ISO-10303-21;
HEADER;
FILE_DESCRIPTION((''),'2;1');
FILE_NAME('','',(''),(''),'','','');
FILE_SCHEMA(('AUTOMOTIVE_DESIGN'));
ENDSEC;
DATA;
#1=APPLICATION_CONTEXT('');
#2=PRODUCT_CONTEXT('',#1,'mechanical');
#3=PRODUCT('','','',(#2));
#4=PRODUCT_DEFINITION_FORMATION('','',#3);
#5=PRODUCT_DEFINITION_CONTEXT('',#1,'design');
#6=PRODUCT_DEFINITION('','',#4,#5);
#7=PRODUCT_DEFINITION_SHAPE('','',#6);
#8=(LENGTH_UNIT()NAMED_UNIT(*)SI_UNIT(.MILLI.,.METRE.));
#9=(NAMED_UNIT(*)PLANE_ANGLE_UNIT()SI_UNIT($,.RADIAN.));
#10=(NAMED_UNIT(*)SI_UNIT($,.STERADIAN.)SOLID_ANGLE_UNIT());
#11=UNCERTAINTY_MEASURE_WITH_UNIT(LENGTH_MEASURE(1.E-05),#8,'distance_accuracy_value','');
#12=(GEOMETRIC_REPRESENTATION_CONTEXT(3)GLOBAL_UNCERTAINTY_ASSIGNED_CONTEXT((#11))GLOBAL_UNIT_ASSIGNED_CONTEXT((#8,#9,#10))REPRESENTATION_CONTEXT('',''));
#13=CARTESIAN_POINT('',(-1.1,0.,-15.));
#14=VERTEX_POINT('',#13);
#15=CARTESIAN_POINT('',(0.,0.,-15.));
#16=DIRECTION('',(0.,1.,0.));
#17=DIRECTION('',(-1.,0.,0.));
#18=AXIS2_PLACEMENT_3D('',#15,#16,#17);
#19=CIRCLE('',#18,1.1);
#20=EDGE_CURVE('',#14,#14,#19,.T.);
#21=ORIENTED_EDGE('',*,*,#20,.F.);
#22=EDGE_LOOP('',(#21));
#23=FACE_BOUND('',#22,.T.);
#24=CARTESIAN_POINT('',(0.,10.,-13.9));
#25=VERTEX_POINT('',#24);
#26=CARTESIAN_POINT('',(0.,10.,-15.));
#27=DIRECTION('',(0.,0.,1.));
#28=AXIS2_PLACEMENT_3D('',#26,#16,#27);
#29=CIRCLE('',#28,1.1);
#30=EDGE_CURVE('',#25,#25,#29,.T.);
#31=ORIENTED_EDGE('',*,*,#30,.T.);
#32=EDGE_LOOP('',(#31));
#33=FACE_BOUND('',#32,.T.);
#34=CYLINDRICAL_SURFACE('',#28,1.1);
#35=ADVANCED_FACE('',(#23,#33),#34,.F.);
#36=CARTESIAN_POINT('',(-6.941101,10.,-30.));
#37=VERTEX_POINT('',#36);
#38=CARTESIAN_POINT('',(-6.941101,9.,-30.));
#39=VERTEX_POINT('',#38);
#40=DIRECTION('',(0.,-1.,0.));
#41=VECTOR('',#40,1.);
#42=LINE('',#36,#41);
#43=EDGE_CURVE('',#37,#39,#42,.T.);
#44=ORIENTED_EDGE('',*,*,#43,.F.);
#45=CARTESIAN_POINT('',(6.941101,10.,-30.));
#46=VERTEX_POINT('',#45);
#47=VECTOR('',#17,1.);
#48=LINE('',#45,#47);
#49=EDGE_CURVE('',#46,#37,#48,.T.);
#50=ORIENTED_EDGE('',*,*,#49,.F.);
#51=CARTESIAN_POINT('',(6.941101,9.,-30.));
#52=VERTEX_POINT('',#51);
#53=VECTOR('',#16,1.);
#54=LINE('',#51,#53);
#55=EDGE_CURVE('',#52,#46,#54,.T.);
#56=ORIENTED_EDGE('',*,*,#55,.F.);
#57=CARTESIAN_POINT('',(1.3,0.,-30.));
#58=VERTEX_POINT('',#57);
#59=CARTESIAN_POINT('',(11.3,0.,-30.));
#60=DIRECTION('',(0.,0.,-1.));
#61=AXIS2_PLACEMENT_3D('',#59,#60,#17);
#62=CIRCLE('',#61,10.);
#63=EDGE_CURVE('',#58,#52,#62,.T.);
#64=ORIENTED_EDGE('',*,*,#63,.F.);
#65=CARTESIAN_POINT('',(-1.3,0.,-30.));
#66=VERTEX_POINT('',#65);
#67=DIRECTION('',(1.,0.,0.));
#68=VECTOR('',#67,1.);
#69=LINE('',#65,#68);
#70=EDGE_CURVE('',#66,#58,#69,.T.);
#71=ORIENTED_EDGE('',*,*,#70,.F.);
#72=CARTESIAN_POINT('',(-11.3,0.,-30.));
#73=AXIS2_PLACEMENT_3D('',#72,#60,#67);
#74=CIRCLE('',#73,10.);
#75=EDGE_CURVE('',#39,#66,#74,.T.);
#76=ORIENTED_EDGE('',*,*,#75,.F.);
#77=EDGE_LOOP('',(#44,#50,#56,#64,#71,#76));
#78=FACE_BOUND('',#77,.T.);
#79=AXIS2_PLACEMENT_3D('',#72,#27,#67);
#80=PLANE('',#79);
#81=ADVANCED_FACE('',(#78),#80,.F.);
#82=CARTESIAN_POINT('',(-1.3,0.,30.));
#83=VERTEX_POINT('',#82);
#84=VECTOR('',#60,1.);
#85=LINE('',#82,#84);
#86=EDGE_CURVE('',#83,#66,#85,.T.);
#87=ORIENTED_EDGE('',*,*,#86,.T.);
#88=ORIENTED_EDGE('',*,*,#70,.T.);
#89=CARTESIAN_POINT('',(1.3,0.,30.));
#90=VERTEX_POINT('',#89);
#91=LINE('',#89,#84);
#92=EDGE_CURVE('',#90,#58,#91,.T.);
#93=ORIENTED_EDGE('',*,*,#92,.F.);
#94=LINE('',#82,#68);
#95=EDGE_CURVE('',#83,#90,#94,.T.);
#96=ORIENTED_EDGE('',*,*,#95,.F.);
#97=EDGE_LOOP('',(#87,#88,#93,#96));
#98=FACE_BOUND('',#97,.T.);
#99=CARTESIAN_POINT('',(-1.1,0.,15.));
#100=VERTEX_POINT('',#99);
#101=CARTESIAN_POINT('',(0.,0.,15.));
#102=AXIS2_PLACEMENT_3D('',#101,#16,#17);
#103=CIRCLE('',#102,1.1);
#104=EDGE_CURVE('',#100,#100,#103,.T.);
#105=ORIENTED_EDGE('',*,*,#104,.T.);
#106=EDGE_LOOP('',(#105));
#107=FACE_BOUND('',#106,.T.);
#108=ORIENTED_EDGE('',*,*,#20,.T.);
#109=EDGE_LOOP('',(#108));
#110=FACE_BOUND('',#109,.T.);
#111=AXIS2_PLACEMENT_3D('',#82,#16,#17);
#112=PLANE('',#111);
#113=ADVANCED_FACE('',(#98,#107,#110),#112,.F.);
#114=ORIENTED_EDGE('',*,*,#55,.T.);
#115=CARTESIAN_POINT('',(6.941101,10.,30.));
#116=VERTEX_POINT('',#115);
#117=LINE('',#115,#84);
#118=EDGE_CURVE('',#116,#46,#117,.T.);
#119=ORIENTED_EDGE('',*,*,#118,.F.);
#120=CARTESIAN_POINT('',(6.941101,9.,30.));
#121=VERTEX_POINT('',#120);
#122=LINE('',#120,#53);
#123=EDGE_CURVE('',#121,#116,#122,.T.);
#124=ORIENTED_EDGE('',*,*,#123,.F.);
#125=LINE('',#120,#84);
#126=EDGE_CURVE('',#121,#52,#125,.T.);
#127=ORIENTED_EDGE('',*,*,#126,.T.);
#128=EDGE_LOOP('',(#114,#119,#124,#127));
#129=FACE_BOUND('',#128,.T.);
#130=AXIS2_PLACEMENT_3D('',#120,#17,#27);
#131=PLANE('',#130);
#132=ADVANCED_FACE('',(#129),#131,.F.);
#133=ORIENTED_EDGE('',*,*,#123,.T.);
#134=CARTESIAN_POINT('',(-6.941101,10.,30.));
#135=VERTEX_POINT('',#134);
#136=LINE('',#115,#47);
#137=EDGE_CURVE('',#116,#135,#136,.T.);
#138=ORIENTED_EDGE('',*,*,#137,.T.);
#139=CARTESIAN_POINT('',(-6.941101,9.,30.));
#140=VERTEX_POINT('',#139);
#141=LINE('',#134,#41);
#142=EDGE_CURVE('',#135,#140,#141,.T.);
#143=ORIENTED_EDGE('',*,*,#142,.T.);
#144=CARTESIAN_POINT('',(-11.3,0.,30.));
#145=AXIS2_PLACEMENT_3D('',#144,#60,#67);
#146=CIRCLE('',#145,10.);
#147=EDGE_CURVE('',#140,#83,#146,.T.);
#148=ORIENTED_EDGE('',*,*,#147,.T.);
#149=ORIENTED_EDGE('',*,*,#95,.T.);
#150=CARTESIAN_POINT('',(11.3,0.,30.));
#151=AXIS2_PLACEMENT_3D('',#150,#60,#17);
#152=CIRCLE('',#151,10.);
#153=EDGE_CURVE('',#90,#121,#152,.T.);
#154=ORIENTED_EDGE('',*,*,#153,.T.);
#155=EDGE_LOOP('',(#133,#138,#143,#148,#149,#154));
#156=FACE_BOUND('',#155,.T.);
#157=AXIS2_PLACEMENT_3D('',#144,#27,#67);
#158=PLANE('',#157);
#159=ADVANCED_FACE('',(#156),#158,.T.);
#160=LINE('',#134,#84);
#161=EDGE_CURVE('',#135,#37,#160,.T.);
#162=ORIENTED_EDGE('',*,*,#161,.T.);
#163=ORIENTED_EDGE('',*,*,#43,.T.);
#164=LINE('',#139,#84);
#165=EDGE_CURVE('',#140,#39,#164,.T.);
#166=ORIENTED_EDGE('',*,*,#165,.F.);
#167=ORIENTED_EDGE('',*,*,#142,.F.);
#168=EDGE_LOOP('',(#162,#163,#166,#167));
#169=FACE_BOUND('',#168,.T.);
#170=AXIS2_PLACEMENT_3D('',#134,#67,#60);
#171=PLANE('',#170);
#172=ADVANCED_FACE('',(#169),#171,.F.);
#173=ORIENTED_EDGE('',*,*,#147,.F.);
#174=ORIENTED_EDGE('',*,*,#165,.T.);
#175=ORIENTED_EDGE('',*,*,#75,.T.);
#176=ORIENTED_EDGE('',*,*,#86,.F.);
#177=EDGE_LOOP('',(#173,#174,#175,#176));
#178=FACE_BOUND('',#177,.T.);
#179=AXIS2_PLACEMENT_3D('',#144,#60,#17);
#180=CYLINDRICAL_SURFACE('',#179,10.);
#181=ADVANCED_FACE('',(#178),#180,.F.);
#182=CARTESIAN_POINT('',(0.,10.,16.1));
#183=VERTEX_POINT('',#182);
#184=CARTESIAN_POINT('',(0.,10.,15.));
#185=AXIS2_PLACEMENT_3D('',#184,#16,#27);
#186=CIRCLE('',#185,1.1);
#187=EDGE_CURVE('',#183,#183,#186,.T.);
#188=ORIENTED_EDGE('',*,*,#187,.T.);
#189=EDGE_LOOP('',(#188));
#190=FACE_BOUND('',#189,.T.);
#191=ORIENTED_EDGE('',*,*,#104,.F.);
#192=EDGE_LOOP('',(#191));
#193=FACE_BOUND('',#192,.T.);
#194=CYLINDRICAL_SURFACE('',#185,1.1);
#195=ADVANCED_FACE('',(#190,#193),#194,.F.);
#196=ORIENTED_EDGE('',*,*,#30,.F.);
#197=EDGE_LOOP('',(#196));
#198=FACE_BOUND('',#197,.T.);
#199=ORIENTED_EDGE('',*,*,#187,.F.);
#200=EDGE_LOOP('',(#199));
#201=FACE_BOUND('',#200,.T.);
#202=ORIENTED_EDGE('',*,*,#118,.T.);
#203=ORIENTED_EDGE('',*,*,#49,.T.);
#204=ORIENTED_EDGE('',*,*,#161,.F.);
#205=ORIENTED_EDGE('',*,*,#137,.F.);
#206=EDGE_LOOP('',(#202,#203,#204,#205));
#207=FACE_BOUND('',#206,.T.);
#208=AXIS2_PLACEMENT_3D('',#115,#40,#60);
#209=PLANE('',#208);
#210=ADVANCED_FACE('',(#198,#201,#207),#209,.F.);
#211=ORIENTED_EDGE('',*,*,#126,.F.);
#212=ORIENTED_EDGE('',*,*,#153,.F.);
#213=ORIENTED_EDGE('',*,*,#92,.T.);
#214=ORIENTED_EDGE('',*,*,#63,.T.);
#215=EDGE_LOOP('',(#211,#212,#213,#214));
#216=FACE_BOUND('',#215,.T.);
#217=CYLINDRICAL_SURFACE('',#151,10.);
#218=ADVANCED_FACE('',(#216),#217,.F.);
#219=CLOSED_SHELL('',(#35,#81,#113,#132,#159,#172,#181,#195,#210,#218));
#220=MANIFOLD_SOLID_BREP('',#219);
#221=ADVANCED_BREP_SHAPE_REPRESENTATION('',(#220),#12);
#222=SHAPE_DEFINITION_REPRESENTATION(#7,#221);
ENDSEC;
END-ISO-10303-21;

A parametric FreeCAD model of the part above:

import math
import FreeCAD as App
import Part
import Sketcher

V = App.Vector
Q = App.Units.Quantity

doc = App.newDocument("Part")
body = doc.addObject("PartDesign::Body", "Body")

# Sketch on XY plane
sketch1 = body.newObject("Sketcher::SketchObject", "Sketch")
sketch1.AttachmentSupport = (doc.getObject("XY_Plane"), [""])
sketch1.MapMode = "FlatFace"
sketch1.addGeometry([
    Part.LineSegment(V(-1.3, 0, 0), V(1.3, 0, 0)),  # 0
    Part.ArcOfCircle(Part.Circle(V(11.3, 0, 0), V(0, 0, 1), 10), math.radians(116), math.radians(180)),  # 1
    Part.LineSegment(V(6.9, 9, 0), V(6.9, 10, 0)),  # 2
    Part.LineSegment(V(6.9, 10, 0), V(-6.9, 10, 0)),  # 3
    Part.LineSegment(V(-6.9, 10, 0), V(-6.9, 9, 0)),  # 4
    Part.ArcOfCircle(Part.Circle(V(-11.3, 0, 0), V(0, 0, 1), 10), math.radians(0), math.radians(64)),  # 5
], False)
sketch1.addConstraint([
    Sketcher.Constraint("Coincident", 0, 2, 1, 2),
    Sketcher.Constraint("Coincident", 1, 1, 2, 1),
    Sketcher.Constraint("Coincident", 2, 2, 3, 1),
    Sketcher.Constraint("Coincident", 3, 2, 4, 1),
    Sketcher.Constraint("Coincident", 4, 2, 5, 2),
    Sketcher.Constraint("Coincident", 5, 1, 0, 1),
    Sketcher.Constraint("Horizontal", 0),
    Sketcher.Constraint("Vertical", 2),
    Sketcher.Constraint("Horizontal", 3),
    Sketcher.Constraint("Vertical", 4),
    Sketcher.Constraint("Equal", 1, 5),
    Sketcher.Constraint("Symmetric", 1, 3, 5, 3, -1, 1),
    Sketcher.Constraint("Symmetric", 1, 1, 4, 2, -2),
    Sketcher.Constraint("PointOnObject", 0, 2, -1),
    Sketcher.Constraint("Radius", 1, Q("10 mm")),
    Sketcher.Constraint("DistanceY", 2, 1, 2, 2, Q("1 mm")),
    Sketcher.Constraint("DistanceX", 0, 1, 0, 2, Q("2.6 mm")),
    Sketcher.Constraint("DistanceY", -1, 1, 1, 1, Q("9 mm")),
])
pad1 = body.newObject("PartDesign::Pad", "Pad")
pad1.Profile = sketch1
pad1.Length = 60
pad1.Midplane = True

# Sketch on XZ plane
sketch2 = body.newObject("Sketcher::SketchObject", "Sketch001")
sketch2.AttachmentSupport = (doc.getObject("XZ_Plane"), [""])
sketch2.MapMode = "FlatFace"
sketch2.AttachmentOffset = App.Placement(V(0, 0, -10), App.Rotation())
sketch2.addGeometry([
    Part.Circle(V(0, 15, 0), V(0, 0, 1), 1.1),
    Part.Circle(V(0, -15, 0), V(0, 0, 1), 1.1),
], False)
sketch2.addConstraint([
    Sketcher.Constraint("Equal", 0, 1),
    Sketcher.Constraint("Symmetric", 0, 3, 1, 3, -1, 1),
    Sketcher.Constraint("PointOnObject", 0, 3, -2),
    Sketcher.Constraint("Diameter", 0, Q("2.2 mm")),
    Sketcher.Constraint("DistanceY", -1, 1, 0, 3, Q("15 mm")),
])
doc.recompute()
hole = body.newObject("PartDesign::Hole", "Hole")
hole.Profile = sketch2
hole.ThreadType = "None"
hole.Diameter = 2.2
hole.DepthType = "ThroughAll"
hole.Reversed = True

doc.recompute()
